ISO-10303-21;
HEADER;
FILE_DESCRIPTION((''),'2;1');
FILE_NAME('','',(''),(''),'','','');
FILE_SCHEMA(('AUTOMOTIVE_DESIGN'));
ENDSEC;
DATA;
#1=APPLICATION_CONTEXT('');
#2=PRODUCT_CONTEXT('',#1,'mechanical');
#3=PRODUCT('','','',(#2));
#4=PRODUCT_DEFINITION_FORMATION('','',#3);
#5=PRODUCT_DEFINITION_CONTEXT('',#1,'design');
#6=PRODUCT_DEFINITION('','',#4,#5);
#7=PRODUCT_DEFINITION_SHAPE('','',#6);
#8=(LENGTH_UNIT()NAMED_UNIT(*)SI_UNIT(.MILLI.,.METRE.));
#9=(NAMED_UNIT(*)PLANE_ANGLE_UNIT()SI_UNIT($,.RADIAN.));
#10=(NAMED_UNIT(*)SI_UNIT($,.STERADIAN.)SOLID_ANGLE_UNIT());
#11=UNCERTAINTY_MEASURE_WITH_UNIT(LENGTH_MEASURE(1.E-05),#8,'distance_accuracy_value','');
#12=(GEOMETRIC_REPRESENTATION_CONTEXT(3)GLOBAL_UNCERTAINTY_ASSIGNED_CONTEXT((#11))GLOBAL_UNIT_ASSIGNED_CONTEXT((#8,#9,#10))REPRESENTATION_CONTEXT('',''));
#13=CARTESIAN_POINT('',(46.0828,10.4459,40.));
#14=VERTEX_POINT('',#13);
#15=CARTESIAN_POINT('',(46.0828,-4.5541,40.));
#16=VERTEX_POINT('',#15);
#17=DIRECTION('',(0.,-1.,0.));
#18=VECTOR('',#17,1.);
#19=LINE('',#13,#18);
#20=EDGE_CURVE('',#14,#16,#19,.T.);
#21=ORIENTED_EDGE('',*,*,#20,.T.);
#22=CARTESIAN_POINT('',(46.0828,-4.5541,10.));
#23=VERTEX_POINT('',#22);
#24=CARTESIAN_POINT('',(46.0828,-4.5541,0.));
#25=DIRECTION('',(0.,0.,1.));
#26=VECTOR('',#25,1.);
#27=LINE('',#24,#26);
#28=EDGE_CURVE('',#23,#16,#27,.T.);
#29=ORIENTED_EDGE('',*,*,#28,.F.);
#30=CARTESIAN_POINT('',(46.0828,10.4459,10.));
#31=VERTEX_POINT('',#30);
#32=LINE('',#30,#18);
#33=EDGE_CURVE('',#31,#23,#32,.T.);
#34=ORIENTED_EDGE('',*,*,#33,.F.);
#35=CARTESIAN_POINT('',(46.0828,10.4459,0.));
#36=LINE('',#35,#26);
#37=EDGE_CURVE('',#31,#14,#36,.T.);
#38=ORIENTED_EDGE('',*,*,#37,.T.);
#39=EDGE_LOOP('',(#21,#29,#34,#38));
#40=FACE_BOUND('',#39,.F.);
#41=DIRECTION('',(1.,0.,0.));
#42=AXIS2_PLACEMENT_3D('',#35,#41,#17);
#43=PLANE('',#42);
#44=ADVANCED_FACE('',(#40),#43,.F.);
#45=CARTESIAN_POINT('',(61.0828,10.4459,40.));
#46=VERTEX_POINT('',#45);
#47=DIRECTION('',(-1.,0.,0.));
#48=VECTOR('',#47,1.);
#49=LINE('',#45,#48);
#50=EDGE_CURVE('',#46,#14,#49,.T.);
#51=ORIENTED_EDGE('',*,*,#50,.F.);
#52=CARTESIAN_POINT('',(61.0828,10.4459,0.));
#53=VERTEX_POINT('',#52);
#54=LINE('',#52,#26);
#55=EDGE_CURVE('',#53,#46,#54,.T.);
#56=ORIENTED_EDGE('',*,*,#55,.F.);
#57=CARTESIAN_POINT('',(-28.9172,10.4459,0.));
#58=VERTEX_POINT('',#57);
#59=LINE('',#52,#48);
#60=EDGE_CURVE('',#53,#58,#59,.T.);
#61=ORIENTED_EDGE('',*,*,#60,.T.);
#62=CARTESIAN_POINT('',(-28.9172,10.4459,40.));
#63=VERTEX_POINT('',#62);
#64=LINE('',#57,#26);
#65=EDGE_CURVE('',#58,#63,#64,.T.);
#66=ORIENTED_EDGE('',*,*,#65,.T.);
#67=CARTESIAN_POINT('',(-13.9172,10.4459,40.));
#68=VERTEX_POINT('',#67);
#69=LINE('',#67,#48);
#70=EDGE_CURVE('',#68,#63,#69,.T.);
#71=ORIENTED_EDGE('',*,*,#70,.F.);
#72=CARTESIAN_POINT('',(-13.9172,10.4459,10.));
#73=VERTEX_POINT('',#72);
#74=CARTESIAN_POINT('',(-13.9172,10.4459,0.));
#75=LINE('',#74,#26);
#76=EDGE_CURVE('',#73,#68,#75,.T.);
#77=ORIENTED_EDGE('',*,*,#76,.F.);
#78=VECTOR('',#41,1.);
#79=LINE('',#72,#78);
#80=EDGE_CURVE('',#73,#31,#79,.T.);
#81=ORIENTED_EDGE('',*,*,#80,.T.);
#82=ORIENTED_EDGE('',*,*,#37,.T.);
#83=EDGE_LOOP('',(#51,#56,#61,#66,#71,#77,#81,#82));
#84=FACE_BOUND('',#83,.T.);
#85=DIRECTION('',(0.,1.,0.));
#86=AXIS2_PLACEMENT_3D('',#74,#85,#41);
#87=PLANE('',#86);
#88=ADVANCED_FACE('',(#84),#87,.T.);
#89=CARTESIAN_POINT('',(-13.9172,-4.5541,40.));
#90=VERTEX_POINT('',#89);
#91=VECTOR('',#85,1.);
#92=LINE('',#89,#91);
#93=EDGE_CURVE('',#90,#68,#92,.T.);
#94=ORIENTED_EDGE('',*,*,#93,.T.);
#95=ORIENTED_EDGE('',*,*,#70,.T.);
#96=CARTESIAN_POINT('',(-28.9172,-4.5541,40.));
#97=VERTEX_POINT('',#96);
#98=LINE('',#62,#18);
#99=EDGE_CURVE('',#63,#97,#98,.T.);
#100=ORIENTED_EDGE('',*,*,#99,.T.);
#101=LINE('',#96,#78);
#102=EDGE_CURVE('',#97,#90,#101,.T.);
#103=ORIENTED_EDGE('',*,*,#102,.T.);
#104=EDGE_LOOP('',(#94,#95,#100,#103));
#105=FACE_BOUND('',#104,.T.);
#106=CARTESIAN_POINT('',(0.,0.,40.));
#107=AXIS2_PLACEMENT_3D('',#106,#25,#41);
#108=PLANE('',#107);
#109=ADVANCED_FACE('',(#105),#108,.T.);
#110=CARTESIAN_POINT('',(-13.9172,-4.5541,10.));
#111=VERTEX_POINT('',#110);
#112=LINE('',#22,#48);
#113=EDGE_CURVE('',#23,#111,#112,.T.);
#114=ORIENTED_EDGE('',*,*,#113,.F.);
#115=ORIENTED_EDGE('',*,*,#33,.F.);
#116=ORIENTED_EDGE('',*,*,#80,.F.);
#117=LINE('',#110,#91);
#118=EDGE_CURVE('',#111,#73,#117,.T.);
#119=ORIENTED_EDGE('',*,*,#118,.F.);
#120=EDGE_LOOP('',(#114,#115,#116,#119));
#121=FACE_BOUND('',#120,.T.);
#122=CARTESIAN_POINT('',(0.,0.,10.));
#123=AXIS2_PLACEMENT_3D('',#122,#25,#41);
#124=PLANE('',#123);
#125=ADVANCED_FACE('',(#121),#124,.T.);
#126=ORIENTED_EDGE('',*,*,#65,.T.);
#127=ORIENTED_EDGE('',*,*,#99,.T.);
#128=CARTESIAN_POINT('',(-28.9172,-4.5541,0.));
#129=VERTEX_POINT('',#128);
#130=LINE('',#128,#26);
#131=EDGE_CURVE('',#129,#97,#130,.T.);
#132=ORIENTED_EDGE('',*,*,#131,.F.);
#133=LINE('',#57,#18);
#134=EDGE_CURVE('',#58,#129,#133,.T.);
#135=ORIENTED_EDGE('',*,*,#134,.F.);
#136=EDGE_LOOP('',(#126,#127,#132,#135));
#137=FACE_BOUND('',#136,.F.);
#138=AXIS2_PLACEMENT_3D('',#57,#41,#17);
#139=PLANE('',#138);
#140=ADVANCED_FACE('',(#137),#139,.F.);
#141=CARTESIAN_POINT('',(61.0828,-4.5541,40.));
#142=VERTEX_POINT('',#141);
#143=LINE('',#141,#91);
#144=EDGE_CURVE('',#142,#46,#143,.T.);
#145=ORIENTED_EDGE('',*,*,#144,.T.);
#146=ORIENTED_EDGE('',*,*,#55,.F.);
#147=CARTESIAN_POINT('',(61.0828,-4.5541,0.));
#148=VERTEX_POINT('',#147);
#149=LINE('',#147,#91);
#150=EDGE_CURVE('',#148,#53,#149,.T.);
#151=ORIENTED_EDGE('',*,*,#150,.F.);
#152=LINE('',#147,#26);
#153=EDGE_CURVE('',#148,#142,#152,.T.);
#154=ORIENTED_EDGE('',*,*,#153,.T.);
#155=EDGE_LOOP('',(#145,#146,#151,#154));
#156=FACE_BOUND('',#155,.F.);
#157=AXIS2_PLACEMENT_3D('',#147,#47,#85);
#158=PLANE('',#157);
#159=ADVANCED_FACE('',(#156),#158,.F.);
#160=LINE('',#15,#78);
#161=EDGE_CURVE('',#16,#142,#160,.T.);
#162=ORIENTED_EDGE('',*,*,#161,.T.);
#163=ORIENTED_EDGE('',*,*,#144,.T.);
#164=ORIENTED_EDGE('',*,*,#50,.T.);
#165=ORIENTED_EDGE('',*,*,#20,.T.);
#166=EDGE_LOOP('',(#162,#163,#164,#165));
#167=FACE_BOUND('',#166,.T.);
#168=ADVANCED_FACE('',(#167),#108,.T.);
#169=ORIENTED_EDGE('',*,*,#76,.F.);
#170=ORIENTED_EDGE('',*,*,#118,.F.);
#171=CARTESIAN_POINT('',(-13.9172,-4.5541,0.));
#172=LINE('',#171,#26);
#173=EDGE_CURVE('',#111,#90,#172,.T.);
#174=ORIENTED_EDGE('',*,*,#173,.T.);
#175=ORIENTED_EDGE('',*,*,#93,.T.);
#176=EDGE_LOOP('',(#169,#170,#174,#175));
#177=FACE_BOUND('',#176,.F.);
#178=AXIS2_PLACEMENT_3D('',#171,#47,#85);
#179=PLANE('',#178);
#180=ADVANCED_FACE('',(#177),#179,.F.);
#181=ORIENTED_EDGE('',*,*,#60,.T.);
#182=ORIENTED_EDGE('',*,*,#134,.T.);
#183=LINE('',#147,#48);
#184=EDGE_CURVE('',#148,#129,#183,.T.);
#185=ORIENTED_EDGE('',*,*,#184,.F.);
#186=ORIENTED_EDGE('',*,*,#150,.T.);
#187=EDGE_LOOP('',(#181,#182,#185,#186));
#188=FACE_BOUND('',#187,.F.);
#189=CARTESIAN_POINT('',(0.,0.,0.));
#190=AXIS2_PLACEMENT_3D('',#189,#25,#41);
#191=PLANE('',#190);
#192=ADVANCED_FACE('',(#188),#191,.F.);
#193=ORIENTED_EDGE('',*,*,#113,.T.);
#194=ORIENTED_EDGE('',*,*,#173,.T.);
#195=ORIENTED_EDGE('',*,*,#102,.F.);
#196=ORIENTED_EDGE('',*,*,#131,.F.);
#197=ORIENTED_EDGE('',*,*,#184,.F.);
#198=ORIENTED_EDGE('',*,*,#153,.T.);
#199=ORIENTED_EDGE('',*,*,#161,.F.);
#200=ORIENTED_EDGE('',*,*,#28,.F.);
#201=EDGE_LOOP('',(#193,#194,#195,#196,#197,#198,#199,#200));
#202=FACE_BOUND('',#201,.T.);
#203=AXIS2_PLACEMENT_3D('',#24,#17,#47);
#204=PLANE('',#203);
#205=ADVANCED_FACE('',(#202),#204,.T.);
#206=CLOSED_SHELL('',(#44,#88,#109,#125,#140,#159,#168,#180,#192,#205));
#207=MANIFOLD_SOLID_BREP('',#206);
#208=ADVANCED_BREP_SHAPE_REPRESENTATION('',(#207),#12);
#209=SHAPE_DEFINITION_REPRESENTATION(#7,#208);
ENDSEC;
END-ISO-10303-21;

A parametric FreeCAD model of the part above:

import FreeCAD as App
import Part
import Sketcher

V = App.Vector
Q = App.Units.Quantity


def add_polygon(sketch, points):
    """Adds a closed chain of lines whose ends are joined by coincident constraints."""
    first, n = sketch.GeometryCount, len(points)
    for a, b in zip(points, points[1:] + points[:1]):
        sketch.addGeometry(Part.LineSegment(App.Vector(*a, 0), App.Vector(*b, 0)), False)
    for i in range(n):
        sketch.addConstraint(Sketcher.Constraint("Coincident", first + i, 2, first + (i + 1) % n, 1))

doc = App.newDocument("Part")
body = doc.addObject("PartDesign::Body", "Body")

sketch1 = body.newObject("Sketcher::SketchObject", "Sketch")
sketch1.AttachmentSupport = (doc.getObject("XY_Plane"), [""])
sketch1.MapMode = "FlatFace"
add_polygon(sketch1, [(46.0828, 10.4459), (-13.9172, 10.4459), (-13.9172, -4.5541), (46.0828, -4.5541)])
sketch1.addConstraint([
    Sketcher.Constraint("Horizontal", 0),
    Sketcher.Constraint("Vertical", 1),
    Sketcher.Constraint("Horizontal", 2),
    Sketcher.Constraint("Vertical", 3),
    Sketcher.Constraint("DistanceX", 0, 2, 0, 1, Q("60 mm")),
    Sketcher.Constraint("DistanceY", 1, 2, 1, 1, Q("15 mm")),
    Sketcher.Constraint("DistanceY", -1, 1, 0, 2, Q("10.446 mm")),
    Sketcher.Constraint("DistanceX", 0, 2, -1, 1, Q("13.9172 mm")),
])
pad1 = body.newObject("PartDesign::Pad", "Pad")
pad1.Profile = sketch1
pad1.Length = 10

sketch2 = body.newObject("Sketcher::SketchObject", "Sketch001")
sketch2.AttachmentSupport = (doc.getObject("XY_Plane"), [""])
sketch2.MapMode = "FlatFace"
add_polygon(sketch2, [(-13.9172, -4.5541), (-13.9172, 10.4459), (-28.9172, 10.4459), (-28.9172, -4.5541)])
add_polygon(sketch2, [(61.0828, 10.4459), (46.0828, 10.4459), (46.0828, -4.5541), (61.0828, -4.5541)])
sketch2.addConstraint([
    Sketcher.Constraint("Vertical", 0),
    Sketcher.Constraint("Horizontal", 1),
    Sketcher.Constraint("Vertical", 2),
    Sketcher.Constraint("Horizontal", 3),
    Sketcher.Constraint("Horizontal", 4),
    Sketcher.Constraint("Vertical", 5),
    Sketcher.Constraint("Horizontal", 6),
    Sketcher.Constraint("Vertical", 7),
    Sketcher.Constraint("Horizontal", 1, 2, 4, 2),
    Sketcher.Constraint("Horizontal", 3, 2, 5, 2),
    Sketcher.Constraint("Equal", 3, 4),
    Sketcher.Constraint("Equal", 6, 0),
    Sketcher.Constraint("DistanceX", 1, 2, 1, 1, Q("15 mm")),
    Sketcher.Constraint("DistanceX", 0, 2, 4, 2, Q("60 mm")),
    Sketcher.Constraint("DistanceY", -1, 1, 0, 2, Q("10.446 mm")),
    Sketcher.Constraint("DistanceX", 0, 2, -1, 1, Q("13.9172 mm")),
])
pad2 = body.newObject("PartDesign::Pad", "Pad001")
pad2.Profile = sketch2
pad2.Length = 40

doc.recompute()
